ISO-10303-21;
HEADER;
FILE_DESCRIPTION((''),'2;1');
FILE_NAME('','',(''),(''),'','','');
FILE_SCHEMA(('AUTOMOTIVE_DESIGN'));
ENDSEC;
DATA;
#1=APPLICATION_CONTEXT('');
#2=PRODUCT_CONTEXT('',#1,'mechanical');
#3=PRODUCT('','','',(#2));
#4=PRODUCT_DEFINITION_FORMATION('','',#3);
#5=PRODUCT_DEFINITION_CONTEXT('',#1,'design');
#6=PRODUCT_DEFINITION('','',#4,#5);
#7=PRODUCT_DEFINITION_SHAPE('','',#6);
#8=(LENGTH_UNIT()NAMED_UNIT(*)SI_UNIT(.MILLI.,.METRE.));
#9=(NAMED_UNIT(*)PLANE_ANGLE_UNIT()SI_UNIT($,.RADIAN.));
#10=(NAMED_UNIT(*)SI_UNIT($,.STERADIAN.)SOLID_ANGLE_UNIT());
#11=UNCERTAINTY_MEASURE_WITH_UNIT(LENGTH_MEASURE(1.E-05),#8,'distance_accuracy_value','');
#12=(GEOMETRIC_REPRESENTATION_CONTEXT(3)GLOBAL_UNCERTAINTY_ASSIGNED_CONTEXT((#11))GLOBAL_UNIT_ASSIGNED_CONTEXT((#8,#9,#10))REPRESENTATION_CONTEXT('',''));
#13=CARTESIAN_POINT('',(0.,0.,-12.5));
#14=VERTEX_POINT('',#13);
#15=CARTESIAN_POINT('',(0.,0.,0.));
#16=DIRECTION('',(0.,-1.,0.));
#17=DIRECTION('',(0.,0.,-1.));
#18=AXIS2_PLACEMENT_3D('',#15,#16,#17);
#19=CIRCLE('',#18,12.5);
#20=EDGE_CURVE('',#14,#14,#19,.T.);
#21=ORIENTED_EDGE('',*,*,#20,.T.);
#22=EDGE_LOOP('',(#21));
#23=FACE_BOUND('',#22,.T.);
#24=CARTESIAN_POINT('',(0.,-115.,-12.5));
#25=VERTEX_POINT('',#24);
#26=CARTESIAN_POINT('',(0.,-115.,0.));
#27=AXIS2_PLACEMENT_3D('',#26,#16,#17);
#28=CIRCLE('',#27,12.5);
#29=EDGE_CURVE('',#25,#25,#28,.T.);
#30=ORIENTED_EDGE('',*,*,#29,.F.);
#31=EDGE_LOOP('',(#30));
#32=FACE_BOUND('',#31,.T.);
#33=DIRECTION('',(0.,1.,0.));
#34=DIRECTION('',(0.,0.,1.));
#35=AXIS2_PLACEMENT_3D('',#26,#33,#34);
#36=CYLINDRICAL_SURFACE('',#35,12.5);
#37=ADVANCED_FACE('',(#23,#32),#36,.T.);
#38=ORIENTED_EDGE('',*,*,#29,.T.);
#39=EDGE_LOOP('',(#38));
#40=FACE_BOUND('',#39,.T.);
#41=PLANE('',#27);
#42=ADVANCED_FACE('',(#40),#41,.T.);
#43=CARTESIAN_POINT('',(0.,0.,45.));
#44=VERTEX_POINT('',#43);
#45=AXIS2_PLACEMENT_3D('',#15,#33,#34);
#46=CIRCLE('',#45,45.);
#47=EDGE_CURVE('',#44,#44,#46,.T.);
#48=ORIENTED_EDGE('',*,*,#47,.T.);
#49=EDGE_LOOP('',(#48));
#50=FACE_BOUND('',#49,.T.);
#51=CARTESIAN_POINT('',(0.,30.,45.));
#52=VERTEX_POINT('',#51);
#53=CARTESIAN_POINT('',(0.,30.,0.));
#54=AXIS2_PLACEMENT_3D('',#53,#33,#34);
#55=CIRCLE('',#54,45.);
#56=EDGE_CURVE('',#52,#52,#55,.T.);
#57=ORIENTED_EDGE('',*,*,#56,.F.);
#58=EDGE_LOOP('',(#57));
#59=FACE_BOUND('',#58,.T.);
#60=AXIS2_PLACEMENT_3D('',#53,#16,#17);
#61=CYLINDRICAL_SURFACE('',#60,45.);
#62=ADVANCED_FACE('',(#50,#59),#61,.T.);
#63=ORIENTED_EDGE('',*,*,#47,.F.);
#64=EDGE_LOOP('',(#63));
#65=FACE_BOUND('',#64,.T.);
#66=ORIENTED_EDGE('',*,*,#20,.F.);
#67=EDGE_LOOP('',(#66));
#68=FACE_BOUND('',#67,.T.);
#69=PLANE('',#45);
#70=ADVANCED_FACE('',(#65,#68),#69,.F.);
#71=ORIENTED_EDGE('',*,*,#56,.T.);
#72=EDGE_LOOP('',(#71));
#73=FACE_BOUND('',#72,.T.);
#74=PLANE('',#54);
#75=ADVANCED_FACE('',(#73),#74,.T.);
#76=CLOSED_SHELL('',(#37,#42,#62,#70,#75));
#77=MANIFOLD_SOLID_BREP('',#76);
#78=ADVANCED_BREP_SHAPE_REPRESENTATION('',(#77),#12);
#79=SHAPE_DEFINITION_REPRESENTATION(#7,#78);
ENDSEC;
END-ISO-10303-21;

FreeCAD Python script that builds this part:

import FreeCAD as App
import Part
import Sketcher
Q = App.Units.Quantity

doc = App.newDocument("Part")
body = doc.addObject("PartDesign::Body", "Body")

# Sketch on XZ plane
sketch1 = body.newObject("Sketcher::SketchObject", "Sketch")
sketch1.AttachmentSupport = (doc.getObject("XZ_Plane"), [""])
sketch1.MapMode = "FlatFace"
sketch1.addGeometry(Part.Circle(App.Vector(0, 0, 0), App.Vector(0, 0, 1), 45), False)
sketch1.addConstraint(Sketcher.Constraint("Coincident", 0, 3, -1, 1))
sketch1.addConstraint(Sketcher.Constraint("Diameter", 0, Q("90 mm")))
pad1 = body.newObject("PartDesign::Pad", "Pad")
pad1.Profile = sketch1
pad1.Length = 30
pad1.Reversed = True

# Sketch on XZ plane
sketch2 = body.newObject("Sketcher::SketchObject", "Sketch001")
sketch2.AttachmentSupport = (doc.getObject("XZ_Plane"), [""])
sketch2.MapMode = "FlatFace"
sketch2.addGeometry(Part.Circle(App.Vector(0, 0, 0), App.Vector(0, 0, 1), 12), False)
sketch2.addConstraint(Sketcher.Constraint("Coincident", 0, 3, -1, 1))
sketch2.addConstraint(Sketcher.Constraint("Diameter", 0, Q("25 mm")))
pad2 = body.newObject("PartDesign::Pad", "Pad001")
pad2.Profile = sketch2
pad2.Length = 115

doc.recompute()
